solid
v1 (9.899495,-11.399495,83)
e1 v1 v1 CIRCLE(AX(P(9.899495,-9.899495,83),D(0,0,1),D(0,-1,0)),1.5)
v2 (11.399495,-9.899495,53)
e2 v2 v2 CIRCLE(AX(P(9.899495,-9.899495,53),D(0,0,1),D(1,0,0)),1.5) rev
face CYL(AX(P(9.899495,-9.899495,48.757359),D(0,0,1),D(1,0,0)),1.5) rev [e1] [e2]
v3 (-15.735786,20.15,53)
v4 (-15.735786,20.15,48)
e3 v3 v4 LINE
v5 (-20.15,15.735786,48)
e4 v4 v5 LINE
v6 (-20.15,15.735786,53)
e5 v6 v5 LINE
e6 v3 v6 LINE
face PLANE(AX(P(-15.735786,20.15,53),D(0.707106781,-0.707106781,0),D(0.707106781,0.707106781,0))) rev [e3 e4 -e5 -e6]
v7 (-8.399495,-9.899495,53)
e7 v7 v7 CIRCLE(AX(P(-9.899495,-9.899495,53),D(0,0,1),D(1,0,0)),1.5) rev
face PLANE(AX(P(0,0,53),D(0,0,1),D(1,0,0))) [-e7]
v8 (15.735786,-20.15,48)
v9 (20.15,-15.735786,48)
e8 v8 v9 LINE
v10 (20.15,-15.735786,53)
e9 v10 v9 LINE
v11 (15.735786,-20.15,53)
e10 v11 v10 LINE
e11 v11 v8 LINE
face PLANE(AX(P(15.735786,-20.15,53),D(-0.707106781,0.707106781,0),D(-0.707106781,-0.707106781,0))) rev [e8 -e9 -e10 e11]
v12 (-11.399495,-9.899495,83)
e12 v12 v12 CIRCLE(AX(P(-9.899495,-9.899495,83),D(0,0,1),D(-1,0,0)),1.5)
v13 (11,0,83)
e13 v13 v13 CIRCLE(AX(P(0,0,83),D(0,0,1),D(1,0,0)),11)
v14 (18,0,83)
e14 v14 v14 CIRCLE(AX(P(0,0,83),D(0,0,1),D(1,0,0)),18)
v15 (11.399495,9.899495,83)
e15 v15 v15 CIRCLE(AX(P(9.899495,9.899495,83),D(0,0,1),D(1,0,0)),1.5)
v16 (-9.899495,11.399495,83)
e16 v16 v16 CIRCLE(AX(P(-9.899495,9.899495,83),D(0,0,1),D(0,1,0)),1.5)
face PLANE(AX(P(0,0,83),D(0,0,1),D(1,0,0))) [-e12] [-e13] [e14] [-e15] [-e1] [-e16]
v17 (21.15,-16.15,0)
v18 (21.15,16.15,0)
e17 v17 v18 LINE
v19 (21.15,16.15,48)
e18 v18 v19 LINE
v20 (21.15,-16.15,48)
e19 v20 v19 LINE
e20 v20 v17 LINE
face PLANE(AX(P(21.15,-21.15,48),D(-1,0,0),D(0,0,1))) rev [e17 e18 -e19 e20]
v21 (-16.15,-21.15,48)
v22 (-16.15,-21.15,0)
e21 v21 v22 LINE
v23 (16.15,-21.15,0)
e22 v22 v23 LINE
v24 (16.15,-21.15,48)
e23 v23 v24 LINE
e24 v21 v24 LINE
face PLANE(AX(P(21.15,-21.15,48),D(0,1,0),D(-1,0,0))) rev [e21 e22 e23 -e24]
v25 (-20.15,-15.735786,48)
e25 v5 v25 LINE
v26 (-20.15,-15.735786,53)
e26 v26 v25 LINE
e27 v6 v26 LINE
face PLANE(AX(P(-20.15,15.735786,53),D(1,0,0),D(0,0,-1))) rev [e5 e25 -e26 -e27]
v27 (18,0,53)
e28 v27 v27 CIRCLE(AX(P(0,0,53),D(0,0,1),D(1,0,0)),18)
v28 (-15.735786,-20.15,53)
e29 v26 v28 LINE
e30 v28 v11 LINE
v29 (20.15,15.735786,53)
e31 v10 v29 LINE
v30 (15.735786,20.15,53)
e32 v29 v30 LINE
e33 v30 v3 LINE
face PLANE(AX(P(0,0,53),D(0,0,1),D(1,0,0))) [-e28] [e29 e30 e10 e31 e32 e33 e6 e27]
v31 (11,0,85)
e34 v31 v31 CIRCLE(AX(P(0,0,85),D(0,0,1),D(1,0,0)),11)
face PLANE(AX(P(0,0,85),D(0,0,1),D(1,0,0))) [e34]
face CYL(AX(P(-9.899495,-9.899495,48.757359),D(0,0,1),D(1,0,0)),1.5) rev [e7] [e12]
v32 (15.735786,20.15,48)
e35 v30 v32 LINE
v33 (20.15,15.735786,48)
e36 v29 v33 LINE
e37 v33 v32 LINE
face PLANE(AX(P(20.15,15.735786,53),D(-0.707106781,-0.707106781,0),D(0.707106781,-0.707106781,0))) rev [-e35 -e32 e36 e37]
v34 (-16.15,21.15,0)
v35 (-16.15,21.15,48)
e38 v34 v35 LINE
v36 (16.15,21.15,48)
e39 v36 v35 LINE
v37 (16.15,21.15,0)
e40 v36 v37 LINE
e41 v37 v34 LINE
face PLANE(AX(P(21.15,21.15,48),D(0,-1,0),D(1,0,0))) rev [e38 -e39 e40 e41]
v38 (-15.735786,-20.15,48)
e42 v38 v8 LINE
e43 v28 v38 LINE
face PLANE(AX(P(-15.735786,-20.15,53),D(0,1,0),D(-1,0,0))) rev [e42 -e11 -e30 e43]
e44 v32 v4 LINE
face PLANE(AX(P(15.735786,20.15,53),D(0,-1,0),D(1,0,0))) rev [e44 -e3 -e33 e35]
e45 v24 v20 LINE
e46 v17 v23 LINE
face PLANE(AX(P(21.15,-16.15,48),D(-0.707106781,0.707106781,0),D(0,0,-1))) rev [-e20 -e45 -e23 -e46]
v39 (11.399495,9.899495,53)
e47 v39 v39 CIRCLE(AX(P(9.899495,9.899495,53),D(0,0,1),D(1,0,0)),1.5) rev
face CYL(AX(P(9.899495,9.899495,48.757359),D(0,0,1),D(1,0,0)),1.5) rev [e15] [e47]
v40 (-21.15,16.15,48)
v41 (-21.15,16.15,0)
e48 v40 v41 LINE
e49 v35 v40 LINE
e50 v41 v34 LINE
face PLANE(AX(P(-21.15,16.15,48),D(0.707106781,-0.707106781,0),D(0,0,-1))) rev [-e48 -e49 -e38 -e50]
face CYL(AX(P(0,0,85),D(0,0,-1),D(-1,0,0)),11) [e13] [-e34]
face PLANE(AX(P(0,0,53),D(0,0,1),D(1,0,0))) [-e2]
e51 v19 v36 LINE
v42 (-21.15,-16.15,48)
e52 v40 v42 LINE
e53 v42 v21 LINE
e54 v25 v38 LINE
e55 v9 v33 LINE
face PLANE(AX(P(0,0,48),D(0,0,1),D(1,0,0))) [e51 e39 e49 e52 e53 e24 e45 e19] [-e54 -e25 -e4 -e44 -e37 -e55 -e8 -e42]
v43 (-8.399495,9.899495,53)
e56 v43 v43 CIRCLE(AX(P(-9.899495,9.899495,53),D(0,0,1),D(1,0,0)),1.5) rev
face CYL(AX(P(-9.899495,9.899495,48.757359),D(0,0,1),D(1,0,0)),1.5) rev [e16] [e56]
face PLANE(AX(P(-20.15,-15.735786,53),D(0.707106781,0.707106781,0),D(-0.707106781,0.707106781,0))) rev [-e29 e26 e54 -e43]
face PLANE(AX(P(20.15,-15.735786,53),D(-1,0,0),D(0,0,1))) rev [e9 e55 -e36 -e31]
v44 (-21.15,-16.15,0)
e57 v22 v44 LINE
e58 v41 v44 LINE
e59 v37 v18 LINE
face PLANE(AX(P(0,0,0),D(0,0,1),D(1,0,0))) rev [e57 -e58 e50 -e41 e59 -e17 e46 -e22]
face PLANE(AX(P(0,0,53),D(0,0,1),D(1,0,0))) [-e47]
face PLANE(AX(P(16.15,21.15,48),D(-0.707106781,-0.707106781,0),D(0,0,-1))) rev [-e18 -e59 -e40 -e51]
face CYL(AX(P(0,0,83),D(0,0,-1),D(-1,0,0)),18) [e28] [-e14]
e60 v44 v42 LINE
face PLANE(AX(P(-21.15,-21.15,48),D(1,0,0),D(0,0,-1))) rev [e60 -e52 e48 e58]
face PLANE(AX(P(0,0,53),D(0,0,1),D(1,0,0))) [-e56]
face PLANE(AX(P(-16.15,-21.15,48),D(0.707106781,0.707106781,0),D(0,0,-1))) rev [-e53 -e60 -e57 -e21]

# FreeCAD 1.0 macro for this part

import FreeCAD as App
import Part
import Sketcher
from FreeCAD import Vector
Q = App.Units.Quantity


def edges_at(feature, points):
    """Names of the edges that pass closest to the given points."""
    edges = feature.Shape.Edges
    near = lambda p: min(range(len(edges)), key=lambda i: edges[i].distToShape(Part.Vertex(*p))[0])
    return sorted({f"Edge{near(p) + 1}" for p in points})

doc = App.newDocument("Part")
body = doc.addObject("PartDesign::Body", "Body")

sketch1 = body.newObject("Sketcher::SketchObject", "Sketch")
sketch1.AttachmentSupport = (doc.getObject("XY_Plane"), [""])
sketch1.MapMode = "FlatFace"
sketch1.addGeometry([
    Part.LineSegment(Vector(-21.15, 21.15, 0), Vector(-21.15, -21.15, 0)),
    Part.LineSegment(Vector(-21.15, -21.15, 0), Vector(21.15, -21.15, 0)),
    Part.LineSegment(Vector(21.15, -21.15, 0), Vector(21.15, 21.15, 0)),
    Part.LineSegment(Vector(21.15, 21.15, 0), Vector(-21.15, 21.15, 0)),
], False)
sketch1.addConstraint([
    Sketcher.Constraint("Coincident", 0, 2, 1, 1),
    Sketcher.Constraint("Coincident", 1, 2, 2, 1),
    Sketcher.Constraint("Coincident", 2, 2, 3, 1),
    Sketcher.Constraint("Coincident", 3, 2, 0, 1),
    Sketcher.Constraint("Vertical", 0),
    Sketcher.Constraint("Horizontal", 1),
    Sketcher.Constraint("Vertical", 2),
    Sketcher.Constraint("Horizontal", 3),
    Sketcher.Constraint("Symmetric", 0, 2, 2, 2, -1, 1),
    Sketcher.Constraint("Equal", 3, 0),
    Sketcher.Constraint("DistanceX", 1, 1, 1, 2, Q("42.3 mm")),
])
pad1 = body.newObject("PartDesign::Pad", "Pad")
pad1.Profile = sketch1
pad1.Length = 48
doc.recompute()

chamfer = body.newObject("PartDesign::Chamfer", "Chamfer")
chamfer.Base = (pad1, edges_at(pad1, [
    (-21.15, 21.15, 24),
    (21.15, 21.15, 24),
    (21.15, -21.15, 24),
    (-21.15, -21.15, 24),
]))
chamfer.Size = 5

sketch2 = body.newObject("Sketcher::SketchObject", "Sketch001")
sketch2.AttachmentSupport = (doc.getObject("XY_Plane"), [""])
sketch2.MapMode = "FlatFace"
sketch2.AttachmentOffset = App.Placement(Vector(0, 0, 48), App.Rotation())
sketch2.addGeometry([
    Part.LineSegment(Vector(-20.15, 15.735786, 0), Vector(-20.15, -15.735786, 0)),
    Part.LineSegment(Vector(-20.15, -15.735786, 0), Vector(-15.735786, -20.15, 0)),
    Part.LineSegment(Vector(-15.735786, -20.15, 0), Vector(15.735786, -20.15, 0)),
    Part.LineSegment(Vector(15.735786, -20.15, 0), Vector(20.15, -15.735786, 0)),
    Part.LineSegment(Vector(20.15, -15.735786, 0), Vector(20.15, 15.735786, 0)),
    Part.LineSegment(Vector(20.15, 15.735786, 0), Vector(15.735786, 20.15, 0)),
    Part.LineSegment(Vector(15.735786, 20.15, 0), Vector(-15.735786, 20.15, 0)),
    Part.LineSegment(Vector(-15.735786, 20.15, 0), Vector(-20.15, 15.735786, 0)),
], False)
sketch2.addConstraint([
    Sketcher.Constraint("Coincident", 0, 2, 1, 1),
    Sketcher.Constraint("Coincident", 1, 2, 2, 1),
    Sketcher.Constraint("Coincident", 2, 2, 3, 1),
    Sketcher.Constraint("Coincident", 3, 2, 4, 1),
    Sketcher.Constraint("Coincident", 4, 2, 5, 1),
    Sketcher.Constraint("Coincident", 5, 2, 6, 1),
    Sketcher.Constraint("Coincident", 6, 2, 7, 1),
    Sketcher.Constraint("Coincident", 7, 2, 0, 1),
    Sketcher.Constraint("Vertical", 0),
    Sketcher.Constraint("Horizontal", 2),
    Sketcher.Constraint("Vertical", 4),
    Sketcher.Constraint("Horizontal", 6),
    Sketcher.Constraint("Symmetric", 0, 2, 4, 2, -1, 1),
    Sketcher.Constraint("Symmetric", 1, 2, 5, 2, -1, 1),
    Sketcher.Constraint("Perpendicular", 1, 3),
    Sketcher.Constraint("Perpendicular", 5, 7),
    Sketcher.Constraint("Horizontal", 0, 2, 3, 2),
    Sketcher.Constraint("Horizontal", 4, 2, 7, 2),
    Sketcher.Constraint("Vertical", 2, 2, 5, 2),
    Sketcher.Constraint("Equal", 6, 0),
    Sketcher.Constraint("DistanceX", 0, 2, 3, 2, Q("40.3 mm")),
    Sketcher.Constraint("Distance", 1, Q("6.242641 mm")),
])
pad2 = body.newObject("PartDesign::Pad", "Pad001")
pad2.Profile = sketch2
pad2.Length = 5

sketch3 = body.newObject("Sketcher::SketchObject", "Sketch002")
sketch3.AttachmentSupport = (doc.getObject("XY_Plane"), [""])
sketch3.MapMode = "FlatFace"
sketch3.AttachmentOffset = App.Placement(Vector(0, 0, 53), App.Rotation())
sketch3.addGeometry(Part.Circle(Vector(0, 0, 0), Vector(0, 0, 1), 18), False)
sketch3.addConstraint([
    Sketcher.Constraint("Coincident", 0, 3, -1, 1),
    Sketcher.Constraint("Diameter", 0, Q("36 mm")),
])
pad3 = body.newObject("PartDesign::Pad", "Pad002")
pad3.Profile = sketch3
pad3.Length = 30

sketch4 = body.newObject("Sketcher::SketchObject", "Sketch003")
sketch4.AttachmentSupport = (doc.getObject("XY_Plane"), [""])
sketch4.MapMode = "FlatFace"
sketch4.AttachmentOffset = App.Placement(Vector(0, 0, 83), App.Rotation())
sketch4.addGeometry(Part.Circle(Vector(0, 0, 0), Vector(0, 0, 1), 11), False)
sketch4.addConstraint([
    Sketcher.Constraint("Coincident", 0, 3, -1, 1),
    Sketcher.Constraint("Diameter", 0, Q("22 mm")),
])
pad4 = body.newObject("PartDesign::Pad", "Pad003")
pad4.Profile = sketch4
pad4.Length = 2

sketch5 = body.newObject("Sketcher::SketchObject", "Sketch004")
sketch5.AttachmentSupport = (doc.getObject("XY_Plane"), [""])
sketch5.MapMode = "FlatFace"
sketch5.AttachmentOffset = App.Placement(Vector(0, 0, 83), App.Rotation())
sketch5.addGeometry(Part.Circle(Vector(9.899495, 9.899495, 0), Vector(0, 0, 1), 1.5), False)
sketch5.addConstraint([
    Sketcher.Constraint("Diameter", 0, Q("3 mm")),
    Sketcher.Constraint("DistanceX", -1, 1, 0, 3, Q("9.899495 mm")),
    Sketcher.Constraint("DistanceY", -1, 1, 0, 3, Q("9.899495 mm")),
])
pocket1 = body.newObject("PartDesign::Pocket", "Pocket")
pocket1.Profile = sketch5
pocket1.Length = 30
doc.recompute()

polarpattern = body.newObject("PartDesign::PolarPattern", "PolarPattern")
polarpattern.Originals = [pocket1]
polarpattern.Axis = (doc.getObject("Z_Axis"), [""])
polarpattern.Angle = 360
polarpattern.Occurrences = 4
body.Tip = polarpattern

doc.recompute()
